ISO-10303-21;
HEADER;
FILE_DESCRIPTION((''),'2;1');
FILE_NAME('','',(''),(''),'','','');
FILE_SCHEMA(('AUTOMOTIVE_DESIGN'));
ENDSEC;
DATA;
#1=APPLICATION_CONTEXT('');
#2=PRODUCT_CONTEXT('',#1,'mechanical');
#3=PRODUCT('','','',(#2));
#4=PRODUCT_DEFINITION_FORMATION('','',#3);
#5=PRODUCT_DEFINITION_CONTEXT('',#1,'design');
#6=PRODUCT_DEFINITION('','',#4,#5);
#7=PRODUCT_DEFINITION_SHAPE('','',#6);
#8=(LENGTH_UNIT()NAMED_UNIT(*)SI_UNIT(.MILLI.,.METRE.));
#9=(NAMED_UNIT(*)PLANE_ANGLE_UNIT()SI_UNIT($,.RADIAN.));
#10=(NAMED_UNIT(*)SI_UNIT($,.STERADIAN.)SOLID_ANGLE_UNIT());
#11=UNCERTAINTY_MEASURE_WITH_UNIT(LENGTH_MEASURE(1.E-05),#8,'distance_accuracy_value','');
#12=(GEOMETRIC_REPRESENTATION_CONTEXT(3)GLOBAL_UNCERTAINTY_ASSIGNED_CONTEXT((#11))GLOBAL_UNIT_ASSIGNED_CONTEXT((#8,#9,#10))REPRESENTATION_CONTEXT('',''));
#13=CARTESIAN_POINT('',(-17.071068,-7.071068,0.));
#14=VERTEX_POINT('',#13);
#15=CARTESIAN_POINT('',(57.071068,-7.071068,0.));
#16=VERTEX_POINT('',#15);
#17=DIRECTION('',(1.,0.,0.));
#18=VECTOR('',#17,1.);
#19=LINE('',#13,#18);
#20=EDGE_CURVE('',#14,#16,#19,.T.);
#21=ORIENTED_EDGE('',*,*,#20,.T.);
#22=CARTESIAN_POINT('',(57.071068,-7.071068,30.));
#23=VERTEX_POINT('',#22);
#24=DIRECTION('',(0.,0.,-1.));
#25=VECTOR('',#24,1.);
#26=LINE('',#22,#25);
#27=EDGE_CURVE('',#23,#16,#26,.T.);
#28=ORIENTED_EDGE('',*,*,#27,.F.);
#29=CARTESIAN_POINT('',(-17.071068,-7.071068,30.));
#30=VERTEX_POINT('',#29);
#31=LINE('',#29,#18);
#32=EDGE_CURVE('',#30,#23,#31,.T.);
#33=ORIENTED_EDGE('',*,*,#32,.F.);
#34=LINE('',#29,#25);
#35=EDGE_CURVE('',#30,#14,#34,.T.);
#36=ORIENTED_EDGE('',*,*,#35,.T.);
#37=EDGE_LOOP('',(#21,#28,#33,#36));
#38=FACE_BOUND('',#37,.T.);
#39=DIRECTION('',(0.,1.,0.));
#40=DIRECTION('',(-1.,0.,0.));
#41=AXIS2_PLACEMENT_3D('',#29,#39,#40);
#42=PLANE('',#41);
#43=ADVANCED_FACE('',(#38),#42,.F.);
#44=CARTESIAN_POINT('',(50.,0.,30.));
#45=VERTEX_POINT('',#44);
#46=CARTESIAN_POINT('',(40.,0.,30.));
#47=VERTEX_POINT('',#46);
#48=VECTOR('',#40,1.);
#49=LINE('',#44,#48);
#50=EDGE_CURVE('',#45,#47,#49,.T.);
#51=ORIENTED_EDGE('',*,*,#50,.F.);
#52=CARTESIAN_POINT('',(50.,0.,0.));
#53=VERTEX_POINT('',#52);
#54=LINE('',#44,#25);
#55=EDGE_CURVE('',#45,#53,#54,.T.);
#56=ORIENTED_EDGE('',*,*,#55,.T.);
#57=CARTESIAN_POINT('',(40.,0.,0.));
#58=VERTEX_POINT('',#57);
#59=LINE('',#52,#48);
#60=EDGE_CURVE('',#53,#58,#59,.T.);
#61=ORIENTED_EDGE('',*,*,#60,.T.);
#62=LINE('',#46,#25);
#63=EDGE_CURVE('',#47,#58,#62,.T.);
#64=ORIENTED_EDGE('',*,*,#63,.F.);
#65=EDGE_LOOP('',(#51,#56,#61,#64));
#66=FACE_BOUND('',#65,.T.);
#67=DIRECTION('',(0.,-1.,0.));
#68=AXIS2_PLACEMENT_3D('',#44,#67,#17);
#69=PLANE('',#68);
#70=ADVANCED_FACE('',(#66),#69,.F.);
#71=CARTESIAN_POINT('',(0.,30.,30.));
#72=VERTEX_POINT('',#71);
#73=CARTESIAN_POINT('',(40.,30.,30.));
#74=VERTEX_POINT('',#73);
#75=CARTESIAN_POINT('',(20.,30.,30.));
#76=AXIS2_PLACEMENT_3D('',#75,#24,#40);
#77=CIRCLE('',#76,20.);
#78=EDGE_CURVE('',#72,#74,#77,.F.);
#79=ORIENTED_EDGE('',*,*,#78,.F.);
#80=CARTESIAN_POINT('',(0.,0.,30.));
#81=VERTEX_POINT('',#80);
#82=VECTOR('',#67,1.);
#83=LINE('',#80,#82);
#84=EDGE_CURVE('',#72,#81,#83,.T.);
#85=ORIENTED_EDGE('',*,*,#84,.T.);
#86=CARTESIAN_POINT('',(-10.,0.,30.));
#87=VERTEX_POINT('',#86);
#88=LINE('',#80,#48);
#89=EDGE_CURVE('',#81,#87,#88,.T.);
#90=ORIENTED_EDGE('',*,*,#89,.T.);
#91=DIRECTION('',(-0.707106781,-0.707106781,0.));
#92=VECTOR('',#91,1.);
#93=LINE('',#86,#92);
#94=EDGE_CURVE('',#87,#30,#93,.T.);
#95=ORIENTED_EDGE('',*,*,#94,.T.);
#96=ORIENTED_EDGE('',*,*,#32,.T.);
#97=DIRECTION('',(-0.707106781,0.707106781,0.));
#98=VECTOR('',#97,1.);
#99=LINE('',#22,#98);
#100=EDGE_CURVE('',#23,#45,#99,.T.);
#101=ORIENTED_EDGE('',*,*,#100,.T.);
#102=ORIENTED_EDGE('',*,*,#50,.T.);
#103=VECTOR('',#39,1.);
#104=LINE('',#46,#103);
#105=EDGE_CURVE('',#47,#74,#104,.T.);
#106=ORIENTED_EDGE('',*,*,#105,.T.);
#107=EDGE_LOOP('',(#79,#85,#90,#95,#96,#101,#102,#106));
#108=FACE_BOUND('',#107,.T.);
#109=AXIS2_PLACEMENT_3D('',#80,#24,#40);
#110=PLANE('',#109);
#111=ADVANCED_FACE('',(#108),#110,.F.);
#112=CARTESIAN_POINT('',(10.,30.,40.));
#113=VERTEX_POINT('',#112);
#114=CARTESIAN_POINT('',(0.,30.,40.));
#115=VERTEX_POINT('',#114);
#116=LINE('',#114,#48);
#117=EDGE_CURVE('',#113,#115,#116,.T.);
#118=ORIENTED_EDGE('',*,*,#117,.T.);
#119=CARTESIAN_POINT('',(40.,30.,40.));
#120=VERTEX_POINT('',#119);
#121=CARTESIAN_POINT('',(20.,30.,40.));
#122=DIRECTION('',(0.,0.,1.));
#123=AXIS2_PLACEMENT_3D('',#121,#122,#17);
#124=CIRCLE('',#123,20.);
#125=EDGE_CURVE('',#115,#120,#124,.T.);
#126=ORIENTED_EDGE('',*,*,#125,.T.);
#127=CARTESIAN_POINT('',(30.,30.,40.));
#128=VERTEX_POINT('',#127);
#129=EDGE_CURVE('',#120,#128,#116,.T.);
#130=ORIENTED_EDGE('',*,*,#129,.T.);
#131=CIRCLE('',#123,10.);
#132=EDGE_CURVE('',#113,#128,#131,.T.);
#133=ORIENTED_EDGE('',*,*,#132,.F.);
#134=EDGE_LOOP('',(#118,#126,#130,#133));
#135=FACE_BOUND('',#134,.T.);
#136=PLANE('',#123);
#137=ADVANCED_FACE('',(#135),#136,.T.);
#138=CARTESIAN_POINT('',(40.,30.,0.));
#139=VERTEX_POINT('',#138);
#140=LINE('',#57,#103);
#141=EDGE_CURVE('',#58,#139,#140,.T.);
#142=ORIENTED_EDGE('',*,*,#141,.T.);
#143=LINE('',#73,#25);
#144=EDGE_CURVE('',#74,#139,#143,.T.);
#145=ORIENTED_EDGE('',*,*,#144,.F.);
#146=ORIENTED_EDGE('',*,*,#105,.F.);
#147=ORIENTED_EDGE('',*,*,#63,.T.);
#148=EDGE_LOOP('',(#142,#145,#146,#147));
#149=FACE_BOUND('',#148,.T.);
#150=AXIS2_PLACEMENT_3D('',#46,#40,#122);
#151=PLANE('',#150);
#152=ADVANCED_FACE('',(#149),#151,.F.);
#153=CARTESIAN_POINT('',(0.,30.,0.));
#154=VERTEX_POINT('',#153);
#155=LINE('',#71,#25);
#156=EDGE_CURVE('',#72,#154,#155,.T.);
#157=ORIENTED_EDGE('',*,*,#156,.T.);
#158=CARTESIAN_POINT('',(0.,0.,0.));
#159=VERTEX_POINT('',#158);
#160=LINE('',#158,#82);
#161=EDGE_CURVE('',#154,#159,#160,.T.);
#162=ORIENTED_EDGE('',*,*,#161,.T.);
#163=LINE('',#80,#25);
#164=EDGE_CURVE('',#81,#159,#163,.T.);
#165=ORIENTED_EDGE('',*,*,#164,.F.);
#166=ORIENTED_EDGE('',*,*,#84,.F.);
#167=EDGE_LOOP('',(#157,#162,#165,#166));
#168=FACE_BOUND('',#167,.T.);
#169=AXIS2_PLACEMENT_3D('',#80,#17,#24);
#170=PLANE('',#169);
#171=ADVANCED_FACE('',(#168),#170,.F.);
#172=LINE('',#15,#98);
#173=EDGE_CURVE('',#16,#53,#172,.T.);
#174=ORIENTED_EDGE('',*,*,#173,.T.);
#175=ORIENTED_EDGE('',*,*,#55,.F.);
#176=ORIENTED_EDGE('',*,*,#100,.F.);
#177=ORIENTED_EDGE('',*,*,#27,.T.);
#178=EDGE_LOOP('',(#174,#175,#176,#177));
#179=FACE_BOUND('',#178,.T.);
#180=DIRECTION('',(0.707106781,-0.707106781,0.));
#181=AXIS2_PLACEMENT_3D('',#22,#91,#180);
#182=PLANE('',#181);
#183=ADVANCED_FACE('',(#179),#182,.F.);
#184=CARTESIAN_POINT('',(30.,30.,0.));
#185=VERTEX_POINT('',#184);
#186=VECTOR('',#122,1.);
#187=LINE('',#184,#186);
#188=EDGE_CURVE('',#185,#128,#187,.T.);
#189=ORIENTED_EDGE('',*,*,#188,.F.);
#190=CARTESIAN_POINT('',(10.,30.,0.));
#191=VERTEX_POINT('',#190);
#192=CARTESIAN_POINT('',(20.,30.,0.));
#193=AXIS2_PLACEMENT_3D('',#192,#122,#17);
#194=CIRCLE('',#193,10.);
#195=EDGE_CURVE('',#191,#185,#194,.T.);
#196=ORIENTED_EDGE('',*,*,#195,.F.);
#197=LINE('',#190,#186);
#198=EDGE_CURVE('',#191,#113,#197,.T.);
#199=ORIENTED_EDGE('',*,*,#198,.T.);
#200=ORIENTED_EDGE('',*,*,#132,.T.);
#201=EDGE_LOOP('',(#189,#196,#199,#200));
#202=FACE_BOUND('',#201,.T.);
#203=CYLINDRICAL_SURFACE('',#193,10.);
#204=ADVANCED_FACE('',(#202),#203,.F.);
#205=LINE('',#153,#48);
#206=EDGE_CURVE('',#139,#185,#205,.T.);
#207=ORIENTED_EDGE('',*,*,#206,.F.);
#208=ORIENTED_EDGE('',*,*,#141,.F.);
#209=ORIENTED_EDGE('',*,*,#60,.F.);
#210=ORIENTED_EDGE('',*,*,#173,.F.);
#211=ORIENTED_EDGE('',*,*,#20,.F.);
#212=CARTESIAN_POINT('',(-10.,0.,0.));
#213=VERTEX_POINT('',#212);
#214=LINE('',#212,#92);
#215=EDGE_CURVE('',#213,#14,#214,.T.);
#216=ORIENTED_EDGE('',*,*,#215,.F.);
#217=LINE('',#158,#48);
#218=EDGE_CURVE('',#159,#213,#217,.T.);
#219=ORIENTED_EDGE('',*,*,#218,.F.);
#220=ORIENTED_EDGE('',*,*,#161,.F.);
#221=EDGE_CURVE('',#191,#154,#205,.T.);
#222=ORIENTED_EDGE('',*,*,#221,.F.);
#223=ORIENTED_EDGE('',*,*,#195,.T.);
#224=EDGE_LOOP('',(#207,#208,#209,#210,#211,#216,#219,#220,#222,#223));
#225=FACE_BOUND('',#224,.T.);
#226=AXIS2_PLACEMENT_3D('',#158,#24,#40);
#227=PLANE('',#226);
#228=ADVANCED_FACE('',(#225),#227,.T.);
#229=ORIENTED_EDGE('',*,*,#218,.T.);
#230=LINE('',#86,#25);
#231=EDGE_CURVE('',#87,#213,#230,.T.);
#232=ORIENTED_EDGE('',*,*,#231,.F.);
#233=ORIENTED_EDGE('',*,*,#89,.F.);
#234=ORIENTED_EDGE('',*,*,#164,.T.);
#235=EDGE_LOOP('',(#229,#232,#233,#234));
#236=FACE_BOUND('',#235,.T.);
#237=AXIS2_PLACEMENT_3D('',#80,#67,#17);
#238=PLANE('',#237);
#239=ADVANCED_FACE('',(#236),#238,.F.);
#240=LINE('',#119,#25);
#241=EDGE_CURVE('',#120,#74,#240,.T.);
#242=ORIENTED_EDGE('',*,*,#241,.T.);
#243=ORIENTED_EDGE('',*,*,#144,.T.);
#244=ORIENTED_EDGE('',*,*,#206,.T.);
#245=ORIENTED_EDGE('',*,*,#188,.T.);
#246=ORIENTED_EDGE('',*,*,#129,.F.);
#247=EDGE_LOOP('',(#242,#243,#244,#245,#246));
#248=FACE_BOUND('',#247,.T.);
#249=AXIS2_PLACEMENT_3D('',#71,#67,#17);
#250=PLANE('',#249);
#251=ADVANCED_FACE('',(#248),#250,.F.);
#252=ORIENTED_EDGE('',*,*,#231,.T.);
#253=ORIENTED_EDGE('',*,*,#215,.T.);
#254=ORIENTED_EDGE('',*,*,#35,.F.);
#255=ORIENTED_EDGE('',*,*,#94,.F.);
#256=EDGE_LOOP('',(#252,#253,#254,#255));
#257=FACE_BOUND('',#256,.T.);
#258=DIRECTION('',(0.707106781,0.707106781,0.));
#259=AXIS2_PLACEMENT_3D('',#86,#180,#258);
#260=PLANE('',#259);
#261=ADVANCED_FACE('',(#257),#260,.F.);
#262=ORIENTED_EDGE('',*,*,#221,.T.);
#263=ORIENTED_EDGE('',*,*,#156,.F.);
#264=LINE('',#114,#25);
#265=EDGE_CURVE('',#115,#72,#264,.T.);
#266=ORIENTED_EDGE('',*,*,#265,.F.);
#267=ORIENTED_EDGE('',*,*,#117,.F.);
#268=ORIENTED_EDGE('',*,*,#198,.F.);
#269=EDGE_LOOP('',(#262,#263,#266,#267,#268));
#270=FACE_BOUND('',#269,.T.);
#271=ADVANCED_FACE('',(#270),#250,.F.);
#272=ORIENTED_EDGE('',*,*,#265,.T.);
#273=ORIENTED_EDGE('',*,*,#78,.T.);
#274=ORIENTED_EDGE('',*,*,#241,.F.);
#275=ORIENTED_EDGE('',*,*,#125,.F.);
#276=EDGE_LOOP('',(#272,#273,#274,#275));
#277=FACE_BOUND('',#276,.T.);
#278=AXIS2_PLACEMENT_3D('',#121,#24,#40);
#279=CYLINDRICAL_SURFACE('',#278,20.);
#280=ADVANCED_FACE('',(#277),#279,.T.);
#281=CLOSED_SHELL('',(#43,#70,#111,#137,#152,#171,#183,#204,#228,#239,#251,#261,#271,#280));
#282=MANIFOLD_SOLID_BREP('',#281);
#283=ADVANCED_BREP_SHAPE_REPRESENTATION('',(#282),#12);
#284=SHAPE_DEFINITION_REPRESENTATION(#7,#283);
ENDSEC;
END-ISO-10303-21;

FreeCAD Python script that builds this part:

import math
import FreeCAD as App
import Part
import Sketcher


def add_polygon(sketch, points):
    """Adds a closed chain of lines whose ends are joined by coincident constraints."""
    first, n = sketch.GeometryCount, len(points)
    for a, b in zip(points, points[1:] + points[:1]):
        sketch.addGeometry(Part.LineSegment(App.Vector(*a, 0), App.Vector(*b, 0)), False)
    for i in range(n):
        sketch.addConstraint(Sketcher.Constraint("Coincident", first + i, 2, first + (i + 1) % n, 1))

doc = App.newDocument("Part")
body = doc.addObject("PartDesign::Body", "Body")

sketch1 = doc.addObject("Sketcher::SketchObject", "Sketch")
body.addObject(sketch1)
sketch1.AttachmentSupport = (doc.XY_Plane, [""])
sketch1.MapMode = "FlatFace"
add_polygon(sketch1, [(0, 0), (-10, 0), (-17.071068, -7.071068), (57.071068, -7.071068), (50, 0), (40, 0), (40, 30), (0, 30)])
sketch1.addConstraint([
    Sketcher.Constraint("Horizontal", 0),
    Sketcher.Constraint("Horizontal", 2),
    Sketcher.Constraint("Horizontal", 4),
    Sketcher.Constraint("Vertical", 5),
    Sketcher.Constraint("Horizontal", 6),
    Sketcher.Constraint("Vertical", 7),
    Sketcher.Constraint("Coincident", 7, 2, -1, 1),
    Sketcher.Constraint("PointOnObject", 3, 2, -1),
    Sketcher.Constraint("Perpendicular", 1, 3),
    Sketcher.Constraint("Equal", 0, 4),
    Sketcher.Constraint("Equal", 1, 3),
    Sketcher.Constraint("DistanceX", 0, 2, 0, 1, 10.0),
    Sketcher.Constraint("DistanceX", 6, 2, 6, 1, 40.0),
    Sketcher.Constraint("DistanceY", 5, 1, 5, 2, 30.0),
    Sketcher.Constraint("Distance", 1, 10.0),
])
pad1 = doc.addObject("PartDesign::Pad", "Pad")
body.addObject(pad1)
pad1.Profile = sketch1
pad1.Length = 30

sketch2 = doc.addObject("Sketcher::SketchObject", "Sketch001")
body.addObject(sketch2)
sketch2.AttachmentSupport = (doc.XY_Plane, [""])
sketch2.MapMode = "FlatFace"
sketch2.addGeometry([
    Part.LineSegment(App.Vector(40, 30, 0), App.Vector(0, 30, 0)),
    Part.ArcOfCircle(Part.Circle(App.Vector(20, 30, 0), App.Vector(0, 0, 1), 20), math.radians(180), math.radians(360)),
], False)
sketch2.addConstraint([
    Sketcher.Constraint("Coincident", 0, 1, 1, 2),
    Sketcher.Constraint("Coincident", 1, 1, 0, 2),
    Sketcher.Constraint("Horizontal", 0),
    Sketcher.Constraint("PointOnObject", 1, 1, -2),
    Sketcher.Constraint("Horizontal", 1, 3, 0, 1),
    Sketcher.Constraint("Radius", 1, 20.0),
    Sketcher.Constraint("DistanceY", -1, 1, 1, 3, 30.0),
])
pad2 = doc.addObject("PartDesign::Pad", "Pad001")
body.addObject(pad2)
pad2.Profile = sketch2
pad2.Length = 40

sketch3 = doc.addObject("Sketcher::SketchObject", "Sketch002")
body.addObject(sketch3)
sketch3.AttachmentSupport = (doc.XY_Plane, [""])
sketch3.MapMode = "FlatFace"
sketch3.AttachmentOffset = App.Placement(App.Vector(0, 0, 40), App.Rotation())
sketch3.addGeometry([
    Part.LineSegment(App.Vector(30, 30, 0), App.Vector(10, 30, 0)),
    Part.ArcOfCircle(Part.Circle(App.Vector(20, 30, 0), App.Vector(0, 0, 1), 10), math.radians(180), math.radians(360)),
], False)
sketch3.addConstraint([
    Sketcher.Constraint("Coincident", 0, 1, 1, 2),
    Sketcher.Constraint("Coincident", 1, 1, 0, 2),
    Sketcher.Constraint("Horizontal", 0),
    Sketcher.Constraint("Horizontal", 1, 3, 0, 1),
    Sketcher.Constraint("Radius", 1, 10.0),
    Sketcher.Constraint("DistanceX", -1, 1, 1, 3, 20.0),
    Sketcher.Constraint("DistanceY", -1, 1, 1, 3, 30.0),
])
pocket1 = doc.addObject("PartDesign::Pocket", "Pocket")
body.addObject(pocket1)
pocket1.Profile = sketch3
pocket1.Length = 40

doc.recompute()
